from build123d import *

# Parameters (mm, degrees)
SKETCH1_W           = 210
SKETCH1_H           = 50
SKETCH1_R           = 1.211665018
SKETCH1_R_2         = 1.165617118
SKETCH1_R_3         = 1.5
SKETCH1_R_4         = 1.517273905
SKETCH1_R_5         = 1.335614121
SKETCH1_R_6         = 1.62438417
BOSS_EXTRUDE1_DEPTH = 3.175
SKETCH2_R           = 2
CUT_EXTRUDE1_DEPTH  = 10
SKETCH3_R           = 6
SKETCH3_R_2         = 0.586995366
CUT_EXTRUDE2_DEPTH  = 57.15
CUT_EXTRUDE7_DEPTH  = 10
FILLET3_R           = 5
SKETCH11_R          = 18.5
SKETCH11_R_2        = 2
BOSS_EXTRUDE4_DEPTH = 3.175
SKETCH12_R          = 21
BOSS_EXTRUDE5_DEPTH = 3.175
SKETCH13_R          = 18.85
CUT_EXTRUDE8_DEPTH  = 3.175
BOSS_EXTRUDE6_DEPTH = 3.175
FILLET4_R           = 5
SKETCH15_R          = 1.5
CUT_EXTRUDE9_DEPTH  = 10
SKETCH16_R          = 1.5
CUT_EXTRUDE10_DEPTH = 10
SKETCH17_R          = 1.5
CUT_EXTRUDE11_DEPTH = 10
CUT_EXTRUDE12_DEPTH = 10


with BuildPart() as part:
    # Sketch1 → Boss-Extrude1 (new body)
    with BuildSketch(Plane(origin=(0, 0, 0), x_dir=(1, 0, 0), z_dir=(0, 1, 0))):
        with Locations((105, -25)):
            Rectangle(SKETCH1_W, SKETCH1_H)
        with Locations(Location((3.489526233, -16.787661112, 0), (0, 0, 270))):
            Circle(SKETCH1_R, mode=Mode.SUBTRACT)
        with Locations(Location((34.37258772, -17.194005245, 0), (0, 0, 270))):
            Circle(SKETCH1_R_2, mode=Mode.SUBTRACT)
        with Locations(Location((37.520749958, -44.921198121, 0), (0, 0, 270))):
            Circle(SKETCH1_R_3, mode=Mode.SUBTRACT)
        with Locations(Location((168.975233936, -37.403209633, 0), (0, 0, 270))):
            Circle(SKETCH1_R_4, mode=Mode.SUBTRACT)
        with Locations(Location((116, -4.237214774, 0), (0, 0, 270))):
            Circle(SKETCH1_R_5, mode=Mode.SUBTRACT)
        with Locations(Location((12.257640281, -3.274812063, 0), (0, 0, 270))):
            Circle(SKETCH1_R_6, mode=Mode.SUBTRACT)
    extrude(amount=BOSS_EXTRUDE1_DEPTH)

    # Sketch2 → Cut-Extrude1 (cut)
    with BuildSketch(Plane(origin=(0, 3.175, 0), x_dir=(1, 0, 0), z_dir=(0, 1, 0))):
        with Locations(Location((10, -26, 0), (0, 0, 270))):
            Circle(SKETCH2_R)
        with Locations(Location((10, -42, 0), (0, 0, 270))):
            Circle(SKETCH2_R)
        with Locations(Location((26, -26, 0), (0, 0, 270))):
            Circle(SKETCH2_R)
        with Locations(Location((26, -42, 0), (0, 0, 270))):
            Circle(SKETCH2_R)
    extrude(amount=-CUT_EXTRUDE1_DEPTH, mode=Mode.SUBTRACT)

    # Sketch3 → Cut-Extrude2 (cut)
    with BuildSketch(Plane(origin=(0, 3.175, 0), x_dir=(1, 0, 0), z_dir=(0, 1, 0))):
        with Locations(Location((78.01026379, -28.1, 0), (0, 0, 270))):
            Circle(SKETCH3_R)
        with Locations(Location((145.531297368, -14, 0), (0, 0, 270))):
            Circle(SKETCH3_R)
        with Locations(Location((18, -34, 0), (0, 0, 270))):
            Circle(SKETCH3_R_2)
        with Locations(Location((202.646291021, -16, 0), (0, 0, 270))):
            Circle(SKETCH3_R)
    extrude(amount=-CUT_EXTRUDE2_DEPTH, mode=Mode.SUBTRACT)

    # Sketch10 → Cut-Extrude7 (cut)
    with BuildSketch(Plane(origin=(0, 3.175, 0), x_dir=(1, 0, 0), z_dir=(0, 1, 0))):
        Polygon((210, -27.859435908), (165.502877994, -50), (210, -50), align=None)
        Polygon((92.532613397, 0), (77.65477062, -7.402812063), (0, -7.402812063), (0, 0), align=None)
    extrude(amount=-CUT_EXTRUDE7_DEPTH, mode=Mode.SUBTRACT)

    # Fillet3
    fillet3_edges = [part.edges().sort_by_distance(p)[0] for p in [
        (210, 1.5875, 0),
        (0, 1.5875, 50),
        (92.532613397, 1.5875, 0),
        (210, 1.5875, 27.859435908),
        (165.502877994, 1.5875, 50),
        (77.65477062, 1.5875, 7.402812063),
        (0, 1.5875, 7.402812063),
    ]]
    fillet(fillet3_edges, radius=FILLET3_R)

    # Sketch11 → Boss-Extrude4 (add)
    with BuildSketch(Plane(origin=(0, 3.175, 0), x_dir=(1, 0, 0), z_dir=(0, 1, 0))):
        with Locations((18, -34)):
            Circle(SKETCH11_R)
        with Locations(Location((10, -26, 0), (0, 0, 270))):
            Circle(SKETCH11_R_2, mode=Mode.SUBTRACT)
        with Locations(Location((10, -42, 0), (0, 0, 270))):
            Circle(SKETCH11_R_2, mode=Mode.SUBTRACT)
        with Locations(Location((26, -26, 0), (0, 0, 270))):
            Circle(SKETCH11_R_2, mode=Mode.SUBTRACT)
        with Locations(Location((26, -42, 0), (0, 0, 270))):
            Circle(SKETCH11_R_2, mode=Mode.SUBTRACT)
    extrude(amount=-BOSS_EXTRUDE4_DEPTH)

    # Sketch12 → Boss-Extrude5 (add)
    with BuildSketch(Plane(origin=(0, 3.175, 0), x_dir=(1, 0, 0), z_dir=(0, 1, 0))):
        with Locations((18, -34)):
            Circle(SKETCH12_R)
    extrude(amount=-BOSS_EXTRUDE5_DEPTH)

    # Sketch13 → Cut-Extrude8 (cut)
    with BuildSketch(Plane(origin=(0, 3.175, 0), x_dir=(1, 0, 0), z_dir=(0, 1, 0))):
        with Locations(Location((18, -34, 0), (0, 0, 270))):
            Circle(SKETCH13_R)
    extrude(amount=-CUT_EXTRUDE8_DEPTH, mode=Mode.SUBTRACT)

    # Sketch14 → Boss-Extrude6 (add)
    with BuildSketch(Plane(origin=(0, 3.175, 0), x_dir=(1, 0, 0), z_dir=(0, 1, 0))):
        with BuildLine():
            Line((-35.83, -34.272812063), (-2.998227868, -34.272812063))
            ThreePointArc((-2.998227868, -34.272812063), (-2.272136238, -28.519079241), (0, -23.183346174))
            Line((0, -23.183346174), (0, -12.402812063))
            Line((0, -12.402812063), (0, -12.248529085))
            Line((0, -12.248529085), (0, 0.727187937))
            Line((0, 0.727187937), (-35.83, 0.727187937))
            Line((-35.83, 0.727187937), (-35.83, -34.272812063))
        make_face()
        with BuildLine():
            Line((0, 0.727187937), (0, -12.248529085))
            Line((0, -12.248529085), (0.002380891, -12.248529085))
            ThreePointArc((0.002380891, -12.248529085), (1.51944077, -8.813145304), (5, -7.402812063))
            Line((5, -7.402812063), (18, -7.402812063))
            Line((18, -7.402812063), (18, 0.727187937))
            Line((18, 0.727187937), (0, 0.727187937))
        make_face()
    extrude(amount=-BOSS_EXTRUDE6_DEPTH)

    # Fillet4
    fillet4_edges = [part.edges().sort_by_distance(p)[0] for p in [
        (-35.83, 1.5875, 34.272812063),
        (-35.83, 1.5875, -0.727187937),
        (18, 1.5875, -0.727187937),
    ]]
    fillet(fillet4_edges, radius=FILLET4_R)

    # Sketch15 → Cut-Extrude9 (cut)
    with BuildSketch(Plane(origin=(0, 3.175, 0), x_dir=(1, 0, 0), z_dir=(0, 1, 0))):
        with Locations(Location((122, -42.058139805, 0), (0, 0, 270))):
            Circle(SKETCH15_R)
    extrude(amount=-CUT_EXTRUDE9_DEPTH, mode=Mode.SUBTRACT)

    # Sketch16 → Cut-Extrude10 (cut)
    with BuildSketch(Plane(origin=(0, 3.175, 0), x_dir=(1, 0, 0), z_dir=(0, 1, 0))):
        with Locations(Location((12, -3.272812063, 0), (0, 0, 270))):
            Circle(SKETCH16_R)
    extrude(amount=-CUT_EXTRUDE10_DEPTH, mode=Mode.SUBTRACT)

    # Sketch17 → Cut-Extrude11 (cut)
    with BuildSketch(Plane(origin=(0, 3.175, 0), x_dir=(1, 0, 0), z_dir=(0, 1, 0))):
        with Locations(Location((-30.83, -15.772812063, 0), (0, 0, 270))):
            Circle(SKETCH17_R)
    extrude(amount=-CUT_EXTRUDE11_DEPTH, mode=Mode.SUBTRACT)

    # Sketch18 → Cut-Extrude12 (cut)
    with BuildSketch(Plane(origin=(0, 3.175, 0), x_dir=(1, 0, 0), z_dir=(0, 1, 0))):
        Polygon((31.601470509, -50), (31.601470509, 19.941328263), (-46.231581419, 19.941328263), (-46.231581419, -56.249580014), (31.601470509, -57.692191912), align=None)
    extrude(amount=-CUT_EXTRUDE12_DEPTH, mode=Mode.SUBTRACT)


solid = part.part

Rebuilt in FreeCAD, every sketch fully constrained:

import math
import FreeCAD as App
import Part
import Sketcher
from FreeCAD import Vector


def edges_at(feature, points):
    """Names of the edges that pass closest to the given points."""
    edges = feature.Shape.Edges
    near = lambda p: min(range(len(edges)), key=lambda i: edges[i].distToShape(Part.Vertex(*p))[0])
    return sorted({f"Edge{near(p) + 1}" for p in points})


def add_polygon(sketch, points):
    """Adds a closed chain of lines whose ends are joined by coincident constraints."""
    first, n = sketch.GeometryCount, len(points)
    for a, b in zip(points, points[1:] + points[:1]):
        sketch.addGeometry(Part.LineSegment(App.Vector(*a, 0), App.Vector(*b, 0)), False)
    for i in range(n):
        sketch.addConstraint(Sketcher.Constraint("Coincident", first + i, 2, first + (i + 1) % n, 1))

doc = App.newDocument("Part")
body = doc.addObject("PartDesign::Body", "Body")

# Sketch on XZ plane
sketch1 = doc.addObject("Sketcher::SketchObject", "Sketch")
body.addObject(sketch1)
sketch1.AttachmentSupport = (doc.XZ_Plane, [""])
sketch1.MapMode = "FlatFace"
add_polygon(sketch1, [(0, 0), (0, 50), (210, 50), (210, 0)])  # lines 0-3
sketch1.addGeometry(Part.Circle(Vector(37.5, 44.9, 0), Vector(0, 0, 1), 1.5), False)  # 4
sketch1.addGeometry(Part.Circle(Vector(169, 37.4, 0), Vector(0, 0, 1), 1.5), False)  # 5
sketch1.addGeometry(Part.Circle(Vector(3.5, 16.8, 0), Vector(0, 0, 1), 1.2), False)  # 6
sketch1.addGeometry(Part.Circle(Vector(34.4, 17.2, 0), Vector(0, 0, 1), 1.2), False)  # 7
sketch1.addGeometry(Part.Circle(Vector(12.3, 3.3, 0), Vector(0, 0, 1), 1.6), False)  # 8
sketch1.addGeometry(Part.Circle(Vector(116, 4.2, 0), Vector(0, 0, 1), 1.3), False)  # 9
sketch1.addConstraint(Sketcher.Constraint("Vertical", 0))
sketch1.addConstraint(Sketcher.Constraint("Horizontal", 1))
sketch1.addConstraint(Sketcher.Constraint("Vertical", 2))
sketch1.addConstraint(Sketcher.Constraint("Horizontal", 3))
sketch1.addConstraint(Sketcher.Constraint("Coincident", 3, 2, -1, 1))
sketch1.addConstraint(Sketcher.Constraint("Diameter", 4, 3.0))
sketch1.addConstraint(Sketcher.Constraint("DistanceX", 1, 1, 1, 2, 210.0))
sketch1.addConstraint(Sketcher.Constraint("DistanceY", 0, 1, 0, 2, 50.0))
sketch1.addConstraint(Sketcher.Constraint("DistanceX", -1, 1, 9, 3, 116.0))
sketch1.addConstraint(Sketcher.Constraint("Diameter", 6, 2.42333))
sketch1.addConstraint(Sketcher.Constraint("Diameter", 8, 3.248768))
sketch1.addConstraint(Sketcher.Constraint("Diameter", 9, 2.671228))
sketch1.addConstraint(Sketcher.Constraint("Diameter", 5, 3.034548))
sketch1.addConstraint(Sketcher.Constraint("Diameter", 7, 2.331234))
sketch1.addConstraint(Sketcher.Constraint("DistanceY", -1, 1, 4, 3, 44.921198))
sketch1.addConstraint(Sketcher.Constraint("DistanceX", -1, 1, 4, 3, 37.52075))
sketch1.addConstraint(Sketcher.Constraint("DistanceY", -1, 1, 5, 3, 37.40321))
sketch1.addConstraint(Sketcher.Constraint("DistanceY", -1, 1, 6, 3, 16.787661))
sketch1.addConstraint(Sketcher.Constraint("DistanceX", -1, 1, 8, 3, 12.25764))
sketch1.addConstraint(Sketcher.Constraint("DistanceX", 6, 3, 7, 3, 30.883061))
sketch1.addConstraint(Sketcher.Constraint("DistanceY", 8, 3, 6, 3, 13.512849))
sketch1.addConstraint(Sketcher.Constraint("DistanceY", 9, 3, 7, 3, 12.95679))
sketch1.addConstraint(Sketcher.Constraint("DistanceX", -1, 1, 5, 3, 168.975234))
sketch1.addConstraint(Sketcher.Constraint("DistanceX", -1, 1, 6, 3, 3.489526))
sketch1.addConstraint(Sketcher.Constraint("DistanceY", -1, 1, 7, 3, 17.194005))
pad1 = doc.addObject("PartDesign::Pad", "Pad")
body.addObject(pad1)
pad1.Profile = sketch1
pad1.Length = 3.175
pad1.Reversed = True

# Sketch on XZ plane
sketch2 = doc.addObject("Sketcher::SketchObject", "Sketch001")
body.addObject(sketch2)
sketch2.AttachmentSupport = (doc.XZ_Plane, [""])
sketch2.MapMode = "FlatFace"
sketch2.AttachmentOffset = App.Placement(Vector(0, 0, -3.175), App.Rotation())
sketch2.addGeometry(Part.Circle(Vector(10, 26, 0), Vector(0, 0, 1), 2), False)
sketch2.addGeometry(Part.Circle(Vector(10, 42, 0), Vector(0, 0, 1), 2), False)
sketch2.addGeometry(Part.Circle(Vector(26, 26, 0), Vector(0, 0, 1), 2), False)
sketch2.addGeometry(Part.Circle(Vector(26, 42, 0), Vector(0, 0, 1), 2), False)
sketch2.addConstraint(Sketcher.Constraint("Equal", 0, 1))
sketch2.addConstraint(Sketcher.Constraint("Equal", 1, 2))
sketch2.addConstraint(Sketcher.Constraint("Equal", 2, 3))
sketch2.addConstraint(Sketcher.Constraint("Horizontal", 0, 3, 2, 3))
sketch2.addConstraint(Sketcher.Constraint("Horizontal", 1, 3, 3, 3))
sketch2.addConstraint(Sketcher.Constraint("Vertical", 0, 3, 1, 3))
sketch2.addConstraint(Sketcher.Constraint("Vertical", 2, 3, 3, 3))
sketch2.addConstraint(Sketcher.Constraint("Diameter", 0, 4.0))
sketch2.addConstraint(Sketcher.Constraint("DistanceX", -1, 1, 0, 3, 10.0))
sketch2.addConstraint(Sketcher.Constraint("DistanceY", -1, 1, 0, 3, 26.0))
sketch2.addConstraint(Sketcher.Constraint("DistanceY", -1, 1, 1, 3, 42.0))
sketch2.addConstraint(Sketcher.Constraint("DistanceX", -1, 1, 2, 3, 26.0))
pocket1 = doc.addObject("PartDesign::Pocket", "Pocket")
body.addObject(pocket1)
pocket1.Profile = sketch2
pocket1.Length = 10
pocket1.Reversed = True

# Sketch on XZ plane
sketch3 = doc.addObject("Sketcher::SketchObject", "Sketch002")
body.addObject(sketch3)
sketch3.AttachmentSupport = (doc.XZ_Plane, [""])
sketch3.MapMode = "FlatFace"
sketch3.AttachmentOffset = App.Placement(Vector(0, 0, -3.175), App.Rotation())
sketch3.addGeometry(Part.Circle(Vector(78, 28.1, 0), Vector(0, 0, 1), 6), False)
sketch3.addGeometry(Part.Circle(Vector(145.5, 14, 0), Vector(0, 0, 1), 6), False)
sketch3.addGeometry(Part.Circle(Vector(18, 34, 0), Vector(0, 0, 1), 0.6), False)
sketch3.addGeometry(Part.Circle(Vector(202.6, 16, 0), Vector(0, 0, 1), 6), False)
sketch3.addConstraint(Sketcher.Constraint("Equal", 0, 1))
sketch3.addConstraint(Sketcher.Constraint("Equal", 1, 3))
sketch3.addConstraint(Sketcher.Constraint("Diameter", 0, 12.0))
sketch3.addConstraint(Sketcher.Constraint("DistanceY", -1, 1, 1, 3, 14.0))
sketch3.addConstraint(Sketcher.Constraint("DistanceX", -1, 1, 2, 3, 18.0))
sketch3.addConstraint(Sketcher.Constraint("DistanceY", -1, 1, 2, 3, 34.0))
sketch3.addConstraint(Sketcher.Constraint("DistanceY", -1, 1, 3, 3, 16.0))
sketch3.addConstraint(Sketcher.Constraint("DistanceY", -1, 1, 0, 3, 28.1))
sketch3.addConstraint(Sketcher.Constraint("Diameter", 2, 1.173991))
sketch3.addConstraint(Sketcher.Constraint("DistanceX", -1, 1, 3, 3, 202.646291))
sketch3.addConstraint(Sketcher.Constraint("DistanceX", -1, 1, 0, 3, 78.010264))
sketch3.addConstraint(Sketcher.Constraint("DistanceX", -1, 1, 1, 3, 145.531297))
pocket2 = doc.addObject("PartDesign::Pocket", "Pocket001")
body.addObject(pocket2)
pocket2.Profile = sketch3
pocket2.Length = 57.15
pocket2.Reversed = True

# Sketch on XZ plane
sketch4 = doc.addObject("Sketcher::SketchObject", "Sketch003")
body.addObject(sketch4)
sketch4.AttachmentSupport = (doc.XZ_Plane, [""])
sketch4.MapMode = "FlatFace"
sketch4.AttachmentOffset = App.Placement(Vector(0, 0, -3.175), App.Rotation())
add_polygon(sketch4, [(210, 28), (166, 50), (210, 50)])  # lines 0-2
add_polygon(sketch4, [(78, 7), (93, 0), (0, 0), (0, 7)])  # lines 3-6
sketch4.addConstraint(Sketcher.Constraint("Horizontal", 1))
sketch4.addConstraint(Sketcher.Constraint("Vertical", 2))
sketch4.addConstraint(Sketcher.Constraint("Horizontal", 4))
sketch4.addConstraint(Sketcher.Constraint("Vertical", 5))
sketch4.addConstraint(Sketcher.Constraint("Horizontal", 6))
sketch4.addConstraint(Sketcher.Constraint("Coincident", 4, 2, -1, 1))
sketch4.addConstraint(Sketcher.Constraint("Parallel", 0, 3))
sketch4.addConstraint(Sketcher.Constraint("DistanceY", -1, 1, 0, 2, 50.0))
sketch4.addConstraint(Sketcher.Constraint("DistanceX", -1, 1, 1, 2, 210.0))
sketch4.addConstraint(Sketcher.Constraint("DistanceX", 6, 1, 6, 2, 77.654771))
sketch4.addConstraint(Sketcher.Constraint("Distance", 0, 49.701091))
sketch4.addConstraint(Sketcher.Constraint("DistanceX", 1, 1, 1, 2, 44.497122))
sketch4.addConstraint(Sketcher.Constraint("DistanceX", 4, 2, 4, 1, 92.532613))
pocket3 = doc.addObject("PartDesign::Pocket", "Pocket002")
body.addObject(pocket3)
pocket3.Profile = sketch4
pocket3.Length = 10
pocket3.Reversed = True
doc.recompute()

fillet = doc.addObject("PartDesign::Fillet", "Fillet")
body.addObject(fillet)
fillet.Base = (pocket3, edges_at(pocket3, [
    (210, 1.587, 0),
    (0, 1.587, 50),
    (92.533, 1.587, 0),
    (210, 1.587, 27.859),
    (165.503, 1.587, 50),
    (77.655, 1.587, 7.403),
    (0, 1.587, 7.403),
]))
fillet.Radius = 5

# Sketch on XZ plane
sketch5 = doc.addObject("Sketcher::SketchObject", "Sketch004")
body.addObject(sketch5)
sketch5.AttachmentSupport = (doc.XZ_Plane, [""])
sketch5.MapMode = "FlatFace"
sketch5.AttachmentOffset = App.Placement(Vector(0, 0, -3.175), App.Rotation())
sketch5.addGeometry(Part.Circle(Vector(18, 34, 0), Vector(0, 0, 1), 18.5), False)
sketch5.addGeometry(Part.Circle(Vector(10, 42, 0), Vector(0, 0, 1), 2), False)
sketch5.addGeometry(Part.Circle(Vector(26, 42, 0), Vector(0, 0, 1), 2), False)
sketch5.addGeometry(Part.Circle(Vector(10, 26, 0), Vector(0, 0, 1), 2), False)
sketch5.addGeometry(Part.Circle(Vector(26, 26, 0), Vector(0, 0, 1), 2), False)
sketch5.addConstraint(Sketcher.Constraint("Equal", 1, 2))
sketch5.addConstraint(Sketcher.Constraint("Equal", 2, 3))
sketch5.addConstraint(Sketcher.Constraint("Equal", 3, 4))
sketch5.addConstraint(Sketcher.Constraint("Horizontal", 1, 3, 2, 3))
sketch5.addConstraint(Sketcher.Constraint("Horizontal", 3, 3, 4, 3))
sketch5.addConstraint(Sketcher.Constraint("Vertical", 1, 3, 3, 3))
sketch5.addConstraint(Sketcher.Constraint("Vertical", 2, 3, 4, 3))
sketch5.addConstraint(Sketcher.Constraint("Diameter", 0, 37.0))
sketch5.addConstraint(Sketcher.Constraint("Diameter", 1, 4.0))
sketch5.addConstraint(Sketcher.Constraint("DistanceX", -1, 1, 0, 3, 18.0))
sketch5.addConstraint(Sketcher.Constraint("DistanceY", -1, 1, 0, 3, 34.0))
sketch5.addConstraint(Sketcher.Constraint("DistanceX", -1, 1, 1, 3, 10.0))
sketch5.addConstraint(Sketcher.Constraint("DistanceY", -1, 1, 1, 3, 42.0))
sketch5.addConstraint(Sketcher.Constraint("DistanceX", -1, 1, 2, 3, 26.0))
sketch5.addConstraint(Sketcher.Constraint("DistanceY", -1, 1, 3, 3, 26.0))
pad2 = doc.addObject("PartDesign::Pad", "Pad001")
body.addObject(pad2)
pad2.Profile = sketch5
pad2.Length = 3.175

# Sketch on XZ plane
sketch6 = doc.addObject("Sketcher::SketchObject", "Sketch005")
body.addObject(sketch6)
sketch6.AttachmentSupport = (doc.XZ_Plane, [""])
sketch6.MapMode = "FlatFace"
sketch6.AttachmentOffset = App.Placement(Vector(0, 0, -3.175), App.Rotation())
sketch6.addGeometry(Part.Circle(Vector(18, 34, 0), Vector(0, 0, 1), 21), False)
sketch6.addConstraint(Sketcher.Constraint("Diameter", 0, 42.0))
sketch6.addConstraint(Sketcher.Constraint("DistanceX", -1, 1, 0, 3, 18.0))
sketch6.addConstraint(Sketcher.Constraint("DistanceY", -1, 1, 0, 3, 34.0))
pad3 = doc.addObject("PartDesign::Pad", "Pad002")
body.addObject(pad3)
pad3.Profile = sketch6
pad3.Length = 3.175

# Sketch on XZ plane
sketch7 = doc.addObject("Sketcher::SketchObject", "Sketch006")
body.addObject(sketch7)
sketch7.AttachmentSupport = (doc.XZ_Plane, [""])
sketch7.MapMode = "FlatFace"
sketch7.AttachmentOffset = App.Placement(Vector(0, 0, -3.175), App.Rotation())
sketch7.addGeometry(Part.Circle(Vector(18, 34, 0), Vector(0, 0, 1), 19), False)
sketch7.addConstraint(Sketcher.Constraint("Diameter", 0, 37.7))
sketch7.addConstraint(Sketcher.Constraint("DistanceX", -1, 1, 0, 3, 18.0))
sketch7.addConstraint(Sketcher.Constraint("DistanceY", -1, 1, 0, 3, 34.0))
pocket4 = doc.addObject("PartDesign::Pocket", "Pocket003")
body.addObject(pocket4)
pocket4.Profile = sketch7
pocket4.Length = 3.175
pocket4.Reversed = True

# Sketch on XZ plane
sketch8 = doc.addObject("Sketcher::SketchObject", "Sketch007")
body.addObject(sketch8)
sketch8.AttachmentSupport = (doc.XZ_Plane, [""])
sketch8.MapMode = "FlatFace"
sketch8.AttachmentOffset = App.Placement(Vector(0, 0, -3.175), App.Rotation())
sketch8.addGeometry(Part.LineSegment(Vector(-35.83, 34.2728, 0), Vector(-2.9982, 34.2728, 0)), False)
sketch8.addGeometry(Part.ArcOfCircle(Part.Circle(Vector(18, 34, 0), Vector(0, 0, 1), 21), math.radians(179), math.radians(211)), False)
sketch8.addGeometry(Part.LineSegment(Vector(0, 23.1833, 0), Vector(0, 12.2485, 0)), False)
sketch8.addGeometry(Part.LineSegment(Vector(0, 12.2485, 0), Vector(0.0024, 12.2485, 0)), False)
sketch8.addGeometry(Part.ArcOfCircle(Part.Circle(Vector(5, 12.4028, 0), Vector(0, 0, 1), 5), math.radians(-178), math.radians(-90)), False)
sketch8.addGeometry(Part.LineSegment(Vector(5, 7.4028, 0), Vector(18, 7.4028, 0)), False)
sketch8.addGeometry(Part.LineSegment(Vector(18, 7.4028, 0), Vector(18, -0.7272, 0)), False)
sketch8.addGeometry(Part.LineSegment(Vector(18, -0.7272, 0), Vector(-35.83, -0.7272, 0)), False)
sketch8.addGeometry(Part.LineSegment(Vector(-35.83, -0.7272, 0), Vector(-35.83, 34.2728, 0)), False)
sketch8.addConstraint(Sketcher.Constraint("Coincident", 0, 2, 1, 1))
sketch8.addConstraint(Sketcher.Constraint("Coincident", 1, 2, 2, 1))
sketch8.addConstraint(Sketcher.Constraint("Coincident", 2, 2, 3, 1))
sketch8.addConstraint(Sketcher.Constraint("Coincident", 3, 2, 4, 1))
sketch8.addConstraint(Sketcher.Constraint("Tangent", 4, 2, 5, 1))
sketch8.addConstraint(Sketcher.Constraint("Coincident", 5, 2, 6, 1))
sketch8.addConstraint(Sketcher.Constraint("Coincident", 6, 2, 7, 1))
sketch8.addConstraint(Sketcher.Constraint("Coincident", 7, 2, 8, 1))
sketch8.addConstraint(Sketcher.Constraint("Coincident", 8, 2, 0, 1))
sketch8.addConstraint(Sketcher.Constraint("Horizontal", 0))
sketch8.addConstraint(Sketcher.Constraint("Vertical", 2))
sketch8.addConstraint(Sketcher.Constraint("Horizontal", 3))
sketch8.addConstraint(Sketcher.Constraint("Horizontal", 5))
sketch8.addConstraint(Sketcher.Constraint("Vertical", 6))
sketch8.addConstraint(Sketcher.Constraint("Horizontal", 7))
sketch8.addConstraint(Sketcher.Constraint("Vertical", 8))
sketch8.addConstraint(Sketcher.Constraint("PointOnObject", 1, 2, -2))
sketch8.addConstraint(Sketcher.Constraint("Vertical", 1, 3, 5, 2))
sketch8.addConstraint(Sketcher.Constraint("Radius", 1, 21.0))
sketch8.addConstraint(Sketcher.Constraint("Radius", 4, 5.0))
sketch8.addConstraint(Sketcher.Constraint("DistanceX", 5, 1, 5, 2, 13.0))
sketch8.addConstraint(Sketcher.Constraint("DistanceY", 8, 1, 8, 2, 35.0))
sketch8.addConstraint(Sketcher.Constraint("DistanceX", -1, 1, 1, 3, 18.0))
sketch8.addConstraint(Sketcher.Constraint("DistanceY", -1, 1, 1, 3, 34.0))
sketch8.addConstraint(Sketcher.Constraint("DistanceX", 7, 2, 7, 1, 53.83))
sketch8.addConstraint(Sketcher.Constraint("DistanceY", 6, 2, 6, 1, 8.13))
sketch8.addConstraint(Sketcher.Constraint("DistanceX", 3, 1, 3, 2, 0.002381))
sketch8.addConstraint(Sketcher.Constraint("DistanceX", 0, 1, 0, 2, 32.831772))
pad4 = doc.addObject("PartDesign::Pad", "Pad003")
body.addObject(pad4)
pad4.Profile = sketch8
pad4.Length = 3.175
doc.recompute()

fillet2 = doc.addObject("PartDesign::Fillet", "Fillet001")
body.addObject(fillet2)
fillet2.Base = (pad4, edges_at(pad4, [(-35.83, 1.587, 34.273), (-35.83, 1.587, -0.727), (18, 1.587, -0.727)]))
fillet2.Radius = 5

# Sketch on XZ plane
sketch9 = doc.addObject("Sketcher::SketchObject", "Sketch008")
body.addObject(sketch9)
sketch9.AttachmentSupport = (doc.XZ_Plane, [""])
sketch9.MapMode = "FlatFace"
sketch9.AttachmentOffset = App.Placement(Vector(0, 0, -3.175), App.Rotation())
sketch9.addGeometry(Part.Circle(Vector(122, 42.1, 0), Vector(0, 0, 1), 1.5), False)
sketch9.addConstraint(Sketcher.Constraint("Diameter", 0, 3.0))
sketch9.addConstraint(Sketcher.Constraint("DistanceX", -1, 1, 0, 3, 122.0))
sketch9.addConstraint(Sketcher.Constraint("DistanceY", -1, 1, 0, 3, 42.05814))
pocket5 = doc.addObject("PartDesign::Pocket", "Pocket004")
body.addObject(pocket5)
pocket5.Profile = sketch9
pocket5.Length = 10
pocket5.Reversed = True

# Sketch on XZ plane
sketch10 = doc.addObject("Sketcher::SketchObject", "Sketch009")
body.addObject(sketch10)
sketch10.AttachmentSupport = (doc.XZ_Plane, [""])
sketch10.MapMode = "FlatFace"
sketch10.AttachmentOffset = App.Placement(Vector(0, 0, -3.175), App.Rotation())
sketch10.addGeometry(Part.Circle(Vector(12, 3.3, 0), Vector(0, 0, 1), 1.5), False)
sketch10.addConstraint(Sketcher.Constraint("Diameter", 0, 3.0))
sketch10.addConstraint(Sketcher.Constraint("DistanceX", -1, 1, 0, 3, 12.0))
sketch10.addConstraint(Sketcher.Constraint("DistanceY", -1, 1, 0, 3, 3.272812))
pocket6 = doc.addObject("PartDesign::Pocket", "Pocket005")
body.addObject(pocket6)
pocket6.Profile = sketch10
pocket6.Length = 10
pocket6.Reversed = True

# Sketch on XZ plane
sketch11 = doc.addObject("Sketcher::SketchObject", "Sketch010")
body.addObject(sketch11)
sketch11.AttachmentSupport = (doc.XZ_Plane, [""])
sketch11.MapMode = "FlatFace"
sketch11.AttachmentOffset = App.Placement(Vector(0, 0, -3.175), App.Rotation())
sketch11.addGeometry(Part.Circle(Vector(-30.8, 15.8, 0), Vector(0, 0, 1), 1.5), False)
sketch11.addConstraint(Sketcher.Constraint("Diameter", 0, 3.0))
sketch11.addConstraint(Sketcher.Constraint("DistanceX", 0, 3, -1, 1, 30.83))
sketch11.addConstraint(Sketcher.Constraint("DistanceY", -1, 1, 0, 3, 15.772812))
pocket7 = doc.addObject("PartDesign::Pocket", "Pocket006")
body.addObject(pocket7)
pocket7.Profile = sketch11
pocket7.Length = 10
pocket7.Reversed = True

# Sketch on XZ plane
sketch12 = doc.addObject("Sketcher::SketchObject", "Sketch011")
body.addObject(sketch12)
sketch12.AttachmentSupport = (doc.XZ_Plane, [""])
sketch12.MapMode = "FlatFace"
sketch12.AttachmentOffset = App.Placement(Vector(0, 0, -3.175), App.Rotation())
add_polygon(sketch12, [(32, -20), (-46, -20), (-46, 56), (32, 58)])  # lines 0-3
sketch12.addConstraint(Sketcher.Constraint("Horizontal", 0))
sketch12.addConstraint(Sketcher.Constraint("Vertical", 1))
sketch12.addConstraint(Sketcher.Constraint("Vertical", 3))
sketch12.addConstraint(Sketcher.Constraint("DistanceX", 0, 2, 0, 1, 77.833052))
sketch12.addConstraint(Sketcher.Constraint("DistanceY", 1, 1, 1, 2, 76.190908))
sketch12.addConstraint(Sketcher.Constraint("DistanceY", 3, 2, 3, 1, 77.63352))
sketch12.addConstraint(Sketcher.Constraint("DistanceX", 0, 2, -1, 1, 46.231581))
sketch12.addConstraint(Sketcher.Constraint("DistanceY", 0, 2, -1, 1, 19.941328))
pocket8 = doc.addObject("PartDesign::Pocket", "Pocket007")
body.addObject(pocket8)
pocket8.Profile = sketch12
pocket8.Length = 10
pocket8.Reversed = True

doc.recompute()
